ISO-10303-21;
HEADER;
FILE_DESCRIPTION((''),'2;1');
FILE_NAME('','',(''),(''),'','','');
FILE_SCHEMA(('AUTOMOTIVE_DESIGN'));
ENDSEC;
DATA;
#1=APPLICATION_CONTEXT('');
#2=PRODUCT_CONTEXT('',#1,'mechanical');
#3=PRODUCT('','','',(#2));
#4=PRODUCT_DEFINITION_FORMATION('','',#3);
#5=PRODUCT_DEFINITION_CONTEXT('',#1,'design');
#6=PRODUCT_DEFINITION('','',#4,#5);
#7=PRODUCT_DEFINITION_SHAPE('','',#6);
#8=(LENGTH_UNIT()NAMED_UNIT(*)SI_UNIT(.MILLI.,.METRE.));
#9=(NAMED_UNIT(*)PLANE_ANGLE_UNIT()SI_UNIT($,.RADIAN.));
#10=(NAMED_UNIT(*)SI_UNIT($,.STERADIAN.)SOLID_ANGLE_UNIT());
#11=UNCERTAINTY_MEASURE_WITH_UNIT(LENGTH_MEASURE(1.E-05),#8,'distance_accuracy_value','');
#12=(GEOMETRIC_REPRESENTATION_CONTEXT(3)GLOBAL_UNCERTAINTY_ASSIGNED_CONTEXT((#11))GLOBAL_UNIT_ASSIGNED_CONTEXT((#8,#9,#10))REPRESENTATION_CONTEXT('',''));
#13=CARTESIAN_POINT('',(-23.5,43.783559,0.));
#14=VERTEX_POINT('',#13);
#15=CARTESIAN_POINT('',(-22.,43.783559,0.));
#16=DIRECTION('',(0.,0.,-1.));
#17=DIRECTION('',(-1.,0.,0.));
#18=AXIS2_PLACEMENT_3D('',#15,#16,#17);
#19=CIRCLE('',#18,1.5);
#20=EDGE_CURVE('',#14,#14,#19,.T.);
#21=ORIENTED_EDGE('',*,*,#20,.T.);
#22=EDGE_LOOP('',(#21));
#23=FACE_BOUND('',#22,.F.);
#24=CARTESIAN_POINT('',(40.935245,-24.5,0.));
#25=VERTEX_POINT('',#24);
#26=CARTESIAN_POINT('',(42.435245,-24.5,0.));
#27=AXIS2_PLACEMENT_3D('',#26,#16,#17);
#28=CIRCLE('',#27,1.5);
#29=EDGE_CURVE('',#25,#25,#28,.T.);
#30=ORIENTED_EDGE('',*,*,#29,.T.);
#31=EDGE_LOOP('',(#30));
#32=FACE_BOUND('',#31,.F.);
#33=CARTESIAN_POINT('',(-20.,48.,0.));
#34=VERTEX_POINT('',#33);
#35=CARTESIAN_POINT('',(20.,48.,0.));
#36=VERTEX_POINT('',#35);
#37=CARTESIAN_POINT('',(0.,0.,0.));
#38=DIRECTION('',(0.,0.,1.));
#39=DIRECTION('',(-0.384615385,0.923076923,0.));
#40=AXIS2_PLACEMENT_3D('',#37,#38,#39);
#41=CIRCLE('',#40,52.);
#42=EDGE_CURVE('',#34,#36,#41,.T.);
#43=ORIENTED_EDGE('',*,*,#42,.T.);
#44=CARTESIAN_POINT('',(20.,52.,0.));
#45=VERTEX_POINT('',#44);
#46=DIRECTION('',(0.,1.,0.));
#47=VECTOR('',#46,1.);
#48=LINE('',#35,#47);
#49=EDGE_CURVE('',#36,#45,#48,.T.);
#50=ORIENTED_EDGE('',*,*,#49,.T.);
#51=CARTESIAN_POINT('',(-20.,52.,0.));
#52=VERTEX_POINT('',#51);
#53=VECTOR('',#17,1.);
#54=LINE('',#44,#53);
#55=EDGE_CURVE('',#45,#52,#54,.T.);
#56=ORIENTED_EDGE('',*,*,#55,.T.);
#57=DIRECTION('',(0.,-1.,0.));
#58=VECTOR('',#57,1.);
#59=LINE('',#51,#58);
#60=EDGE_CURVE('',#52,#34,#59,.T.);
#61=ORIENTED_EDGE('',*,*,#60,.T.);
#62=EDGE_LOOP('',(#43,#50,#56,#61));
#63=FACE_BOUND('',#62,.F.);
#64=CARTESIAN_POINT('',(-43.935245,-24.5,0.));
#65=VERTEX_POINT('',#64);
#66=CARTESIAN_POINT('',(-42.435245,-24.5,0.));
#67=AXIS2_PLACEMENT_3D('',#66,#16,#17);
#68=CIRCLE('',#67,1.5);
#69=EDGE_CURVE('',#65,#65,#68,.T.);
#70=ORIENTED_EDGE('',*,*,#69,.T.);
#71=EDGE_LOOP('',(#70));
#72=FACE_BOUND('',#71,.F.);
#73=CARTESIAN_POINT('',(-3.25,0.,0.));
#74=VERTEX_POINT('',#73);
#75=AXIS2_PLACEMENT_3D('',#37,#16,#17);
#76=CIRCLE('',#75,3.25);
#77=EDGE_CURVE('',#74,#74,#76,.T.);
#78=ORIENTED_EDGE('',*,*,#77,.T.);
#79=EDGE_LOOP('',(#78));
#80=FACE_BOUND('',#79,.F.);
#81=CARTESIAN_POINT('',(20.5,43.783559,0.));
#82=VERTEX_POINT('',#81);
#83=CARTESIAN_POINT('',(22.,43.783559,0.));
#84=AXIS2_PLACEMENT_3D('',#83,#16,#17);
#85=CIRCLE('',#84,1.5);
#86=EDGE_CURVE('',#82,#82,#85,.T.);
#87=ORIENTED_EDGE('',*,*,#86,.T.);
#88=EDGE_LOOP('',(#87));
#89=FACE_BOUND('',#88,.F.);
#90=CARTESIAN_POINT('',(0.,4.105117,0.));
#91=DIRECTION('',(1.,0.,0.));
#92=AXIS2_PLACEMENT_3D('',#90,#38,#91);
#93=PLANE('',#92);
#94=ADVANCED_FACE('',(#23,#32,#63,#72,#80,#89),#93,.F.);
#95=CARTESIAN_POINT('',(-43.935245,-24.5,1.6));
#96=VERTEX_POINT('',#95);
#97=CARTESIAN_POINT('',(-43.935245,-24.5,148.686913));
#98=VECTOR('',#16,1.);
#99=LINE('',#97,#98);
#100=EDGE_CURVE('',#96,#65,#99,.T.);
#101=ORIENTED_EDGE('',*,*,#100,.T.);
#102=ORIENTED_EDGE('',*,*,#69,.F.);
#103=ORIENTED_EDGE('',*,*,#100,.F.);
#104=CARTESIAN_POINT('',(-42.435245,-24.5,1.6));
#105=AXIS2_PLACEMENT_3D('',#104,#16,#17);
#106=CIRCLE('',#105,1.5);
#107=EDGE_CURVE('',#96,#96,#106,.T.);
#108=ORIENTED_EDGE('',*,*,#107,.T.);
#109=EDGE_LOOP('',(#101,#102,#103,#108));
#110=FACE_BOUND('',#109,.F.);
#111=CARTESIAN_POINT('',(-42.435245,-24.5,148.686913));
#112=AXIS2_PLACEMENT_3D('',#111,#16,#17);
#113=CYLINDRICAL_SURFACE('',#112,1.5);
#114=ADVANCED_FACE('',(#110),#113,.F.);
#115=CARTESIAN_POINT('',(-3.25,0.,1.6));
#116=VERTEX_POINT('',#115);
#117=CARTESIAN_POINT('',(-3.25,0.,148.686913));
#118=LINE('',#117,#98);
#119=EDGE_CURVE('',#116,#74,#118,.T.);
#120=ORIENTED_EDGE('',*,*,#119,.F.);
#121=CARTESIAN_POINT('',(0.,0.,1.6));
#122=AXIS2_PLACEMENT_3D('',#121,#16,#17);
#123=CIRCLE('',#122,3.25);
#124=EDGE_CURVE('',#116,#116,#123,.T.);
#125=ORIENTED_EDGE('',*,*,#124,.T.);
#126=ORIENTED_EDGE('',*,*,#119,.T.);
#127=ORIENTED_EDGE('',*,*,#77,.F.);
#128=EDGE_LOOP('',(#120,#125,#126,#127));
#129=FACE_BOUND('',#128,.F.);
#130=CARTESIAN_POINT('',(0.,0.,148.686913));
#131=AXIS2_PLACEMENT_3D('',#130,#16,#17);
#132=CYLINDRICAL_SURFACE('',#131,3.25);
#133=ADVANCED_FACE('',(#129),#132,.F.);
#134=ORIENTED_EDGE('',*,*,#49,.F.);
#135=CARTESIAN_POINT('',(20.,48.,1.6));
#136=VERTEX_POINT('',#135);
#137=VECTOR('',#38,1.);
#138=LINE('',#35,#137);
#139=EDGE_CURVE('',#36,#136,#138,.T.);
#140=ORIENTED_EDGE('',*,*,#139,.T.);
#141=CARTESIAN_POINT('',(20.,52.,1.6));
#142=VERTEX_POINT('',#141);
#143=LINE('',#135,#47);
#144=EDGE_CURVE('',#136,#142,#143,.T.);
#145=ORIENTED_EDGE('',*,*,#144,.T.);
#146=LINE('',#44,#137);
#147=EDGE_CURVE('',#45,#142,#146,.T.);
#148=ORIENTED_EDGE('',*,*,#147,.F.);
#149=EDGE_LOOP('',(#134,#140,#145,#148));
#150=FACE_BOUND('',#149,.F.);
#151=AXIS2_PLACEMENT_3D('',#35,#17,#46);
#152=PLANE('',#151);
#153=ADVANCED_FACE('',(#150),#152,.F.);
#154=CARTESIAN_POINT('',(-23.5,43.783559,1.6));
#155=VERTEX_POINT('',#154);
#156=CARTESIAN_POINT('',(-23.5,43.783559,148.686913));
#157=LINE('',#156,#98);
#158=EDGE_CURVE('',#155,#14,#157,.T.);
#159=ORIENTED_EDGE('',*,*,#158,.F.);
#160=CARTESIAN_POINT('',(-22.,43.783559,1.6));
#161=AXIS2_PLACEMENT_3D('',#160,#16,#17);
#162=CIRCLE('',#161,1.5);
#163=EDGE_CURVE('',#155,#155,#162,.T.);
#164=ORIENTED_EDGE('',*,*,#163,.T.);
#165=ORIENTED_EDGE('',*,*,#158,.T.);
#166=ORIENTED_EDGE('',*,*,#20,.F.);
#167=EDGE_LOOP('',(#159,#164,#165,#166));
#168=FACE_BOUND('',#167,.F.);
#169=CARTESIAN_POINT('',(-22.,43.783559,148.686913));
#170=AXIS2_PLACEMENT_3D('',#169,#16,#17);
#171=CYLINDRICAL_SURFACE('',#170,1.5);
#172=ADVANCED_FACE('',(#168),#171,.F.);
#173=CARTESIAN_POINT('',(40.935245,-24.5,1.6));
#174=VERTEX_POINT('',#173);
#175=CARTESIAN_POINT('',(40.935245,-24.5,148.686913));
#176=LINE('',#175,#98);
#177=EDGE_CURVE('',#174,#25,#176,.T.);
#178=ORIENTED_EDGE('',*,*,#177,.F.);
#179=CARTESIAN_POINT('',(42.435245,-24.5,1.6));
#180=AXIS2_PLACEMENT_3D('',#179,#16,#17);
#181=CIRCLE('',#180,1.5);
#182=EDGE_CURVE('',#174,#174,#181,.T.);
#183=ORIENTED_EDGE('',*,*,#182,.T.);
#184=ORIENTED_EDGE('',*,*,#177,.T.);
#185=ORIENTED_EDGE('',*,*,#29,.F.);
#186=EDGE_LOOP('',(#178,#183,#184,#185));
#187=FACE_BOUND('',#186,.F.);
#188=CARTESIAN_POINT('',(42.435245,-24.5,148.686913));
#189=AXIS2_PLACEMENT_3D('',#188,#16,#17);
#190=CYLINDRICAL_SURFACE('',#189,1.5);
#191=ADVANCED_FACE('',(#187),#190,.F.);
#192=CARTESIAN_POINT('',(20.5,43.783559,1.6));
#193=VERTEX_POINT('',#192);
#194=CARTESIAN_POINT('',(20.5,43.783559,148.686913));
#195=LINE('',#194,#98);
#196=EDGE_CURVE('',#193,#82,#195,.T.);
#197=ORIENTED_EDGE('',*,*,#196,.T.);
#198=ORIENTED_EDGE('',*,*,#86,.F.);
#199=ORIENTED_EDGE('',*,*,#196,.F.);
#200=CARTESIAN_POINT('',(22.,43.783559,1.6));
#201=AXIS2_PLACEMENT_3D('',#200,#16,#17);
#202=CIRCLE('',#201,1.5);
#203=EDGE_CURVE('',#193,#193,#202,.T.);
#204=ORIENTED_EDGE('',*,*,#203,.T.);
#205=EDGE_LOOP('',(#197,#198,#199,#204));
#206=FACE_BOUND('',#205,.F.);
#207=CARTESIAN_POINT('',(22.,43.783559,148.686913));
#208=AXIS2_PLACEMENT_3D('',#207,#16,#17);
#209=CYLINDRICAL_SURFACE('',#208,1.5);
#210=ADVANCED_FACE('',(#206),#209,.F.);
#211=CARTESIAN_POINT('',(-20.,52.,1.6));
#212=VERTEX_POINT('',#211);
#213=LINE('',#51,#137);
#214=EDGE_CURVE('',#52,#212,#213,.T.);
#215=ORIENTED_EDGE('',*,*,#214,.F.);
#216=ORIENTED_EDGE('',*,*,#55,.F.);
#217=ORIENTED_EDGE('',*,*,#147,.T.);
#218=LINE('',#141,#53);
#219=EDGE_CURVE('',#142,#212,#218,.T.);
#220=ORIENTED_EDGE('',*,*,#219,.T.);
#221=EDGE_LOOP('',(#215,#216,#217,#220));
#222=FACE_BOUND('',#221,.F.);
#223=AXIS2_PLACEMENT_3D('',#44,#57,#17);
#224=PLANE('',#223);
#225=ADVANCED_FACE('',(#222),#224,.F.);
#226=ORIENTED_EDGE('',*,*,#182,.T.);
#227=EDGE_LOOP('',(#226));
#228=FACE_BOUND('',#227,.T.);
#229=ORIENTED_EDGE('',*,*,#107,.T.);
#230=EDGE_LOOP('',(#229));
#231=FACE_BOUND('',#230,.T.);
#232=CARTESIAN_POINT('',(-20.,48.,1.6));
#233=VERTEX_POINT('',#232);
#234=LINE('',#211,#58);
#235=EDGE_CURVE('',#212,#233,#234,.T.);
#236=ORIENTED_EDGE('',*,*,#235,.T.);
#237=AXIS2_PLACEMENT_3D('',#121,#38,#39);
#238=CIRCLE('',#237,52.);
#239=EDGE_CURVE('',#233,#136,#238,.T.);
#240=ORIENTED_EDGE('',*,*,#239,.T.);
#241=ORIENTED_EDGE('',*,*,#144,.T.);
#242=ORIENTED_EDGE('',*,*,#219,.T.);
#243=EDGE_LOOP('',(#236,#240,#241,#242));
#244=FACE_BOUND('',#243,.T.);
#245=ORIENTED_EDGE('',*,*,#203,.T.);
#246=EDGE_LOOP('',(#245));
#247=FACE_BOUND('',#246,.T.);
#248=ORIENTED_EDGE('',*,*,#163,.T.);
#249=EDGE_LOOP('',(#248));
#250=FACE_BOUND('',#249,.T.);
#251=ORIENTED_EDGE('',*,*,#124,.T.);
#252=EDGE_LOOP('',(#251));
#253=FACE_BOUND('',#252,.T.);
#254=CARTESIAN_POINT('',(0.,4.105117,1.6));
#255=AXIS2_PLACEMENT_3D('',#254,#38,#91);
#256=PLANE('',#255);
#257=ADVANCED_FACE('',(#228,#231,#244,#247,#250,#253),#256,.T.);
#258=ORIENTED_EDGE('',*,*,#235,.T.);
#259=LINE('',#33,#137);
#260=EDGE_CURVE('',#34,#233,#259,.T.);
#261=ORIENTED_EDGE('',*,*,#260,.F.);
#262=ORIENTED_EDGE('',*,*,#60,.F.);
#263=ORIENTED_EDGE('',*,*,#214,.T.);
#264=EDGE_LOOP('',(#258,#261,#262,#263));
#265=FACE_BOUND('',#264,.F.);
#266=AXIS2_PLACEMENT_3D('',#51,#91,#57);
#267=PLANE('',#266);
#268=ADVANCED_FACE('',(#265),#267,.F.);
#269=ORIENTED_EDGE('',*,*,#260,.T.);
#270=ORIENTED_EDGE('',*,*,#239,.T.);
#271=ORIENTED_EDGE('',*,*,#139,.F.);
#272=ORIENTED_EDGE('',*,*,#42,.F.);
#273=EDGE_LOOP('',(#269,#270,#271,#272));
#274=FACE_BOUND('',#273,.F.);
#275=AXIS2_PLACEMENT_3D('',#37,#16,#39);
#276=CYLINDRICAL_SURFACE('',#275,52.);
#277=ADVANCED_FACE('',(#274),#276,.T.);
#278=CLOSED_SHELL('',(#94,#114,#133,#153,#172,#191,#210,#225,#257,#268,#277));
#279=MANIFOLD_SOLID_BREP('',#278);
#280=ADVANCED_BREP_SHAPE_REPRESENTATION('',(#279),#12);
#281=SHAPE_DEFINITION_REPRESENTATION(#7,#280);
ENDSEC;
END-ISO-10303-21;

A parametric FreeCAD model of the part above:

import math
import FreeCAD as App
import Part
import Sketcher
from FreeCAD import Vector

doc = App.newDocument("Part")
params = doc.addObject("Spreadsheet::Sheet", "Params")
for row, (alias, value) in enumerate([
    ("sketch1_radius", "52 mm"),
    ("sketch1_width", "40 mm"),
    ("sketch1_height", "4 mm"),
    ("pad1_length", "1.6 mm"),
    ("sketch2_diameter", "3 mm"),
    ("hole_diameter", "3 mm"),
    ("sketch3_diameter", "6.5 mm"),
    ("hole2_diameter", "6.5 mm"),
], start=1):
    params.set(f"A{row}", alias)
    params.set(f"B{row}", "=" + value)
    params.setAlias(f"B{row}", alias)

body = doc.addObject("PartDesign::Body", "Body")

# Sketch on XY plane
sketch1 = body.newObject("Sketcher::SketchObject", "Sketch")
sketch1.AttachmentSupport = (doc.getObject("XY_Plane"), [""])
sketch1.MapMode = "FlatFace"
sketch1.addGeometry([
    Part.LineSegment(Vector(-20, 52, 0), Vector(-20, 48, 0)),
    Part.ArcOfCircle(Part.Circle(Vector(0, 0, 0), Vector(0, 0, 1), 52), math.radians(113), math.radians(427)),
    Part.LineSegment(Vector(20, 48, 0), Vector(20, 52, 0)),
    Part.LineSegment(Vector(20, 52, 0), Vector(-20, 52, 0)),
], False)
sketch1.addConstraint([
    Sketcher.Constraint("Coincident", 0, 2, 1, 1),
    Sketcher.Constraint("Coincident", 1, 2, 2, 1),
    Sketcher.Constraint("Coincident", 2, 2, 3, 1),
    Sketcher.Constraint("Coincident", 3, 2, 0, 1),
    Sketcher.Constraint("Vertical", 0),
    Sketcher.Constraint("Vertical", 2),
    Sketcher.Constraint("Horizontal", 3),
    Sketcher.Constraint("Coincident", 1, 3, -1, 1),
    Sketcher.Constraint("Horizontal", 0, 2, 1, 2),
    Sketcher.Constraint("Radius", 1, 52.0),
    Sketcher.Constraint("DistanceX", 3, 2, 3, 1, 40.0),
    Sketcher.Constraint("DistanceY", 0, 2, 0, 1, 4.0),
])
sketch1.setExpression("Constraints[9]", "Params.sketch1_radius")
sketch1.setExpression("Constraints[10]", "Params.sketch1_width")
sketch1.setExpression("Constraints[11]", "Params.sketch1_height")
pad1 = body.newObject("PartDesign::Pad", "Pad")
pad1.Profile = sketch1
pad1.setExpression("Length", "Params.pad1_length")

# Sketch on XY plane
sketch2 = body.newObject("Sketcher::SketchObject", "Sketch001")
sketch2.AttachmentSupport = (doc.getObject("XY_Plane"), [""])
sketch2.MapMode = "FlatFace"
sketch2.AttachmentOffset = App.Placement(Vector(0, 0, 1.6), App.Rotation())
sketch2.addGeometry([
    Part.Circle(Vector(-22, 43.8, 0), Vector(0, 0, 1), 1.5),
    Part.Circle(Vector(22, 43.8, 0), Vector(0, 0, 1), 1.5),
    Part.Circle(Vector(42.4, -24.5, 0), Vector(0, 0, 1), 1.5),
    Part.Circle(Vector(-42.4, -24.5, 0), Vector(0, 0, 1), 1.5),
], False)
sketch2.addConstraint([
    Sketcher.Constraint("Equal", 0, 1),
    Sketcher.Constraint("Equal", 1, 2),
    Sketcher.Constraint("Equal", 2, 3),
    Sketcher.Constraint("Symmetric", 0, 3, 1, 3, -2),
    Sketcher.Constraint("Symmetric", 2, 3, 3, 3, -2),
    Sketcher.Constraint("Diameter", 0, 3.0),
    Sketcher.Constraint("DistanceX", 0, 3, -1, 1, 22.0),
    Sketcher.Constraint("DistanceY", 2, 3, -1, 1, 24.5),
    Sketcher.Constraint("DistanceY", -1, 1, 0, 3, 43.783559),
    Sketcher.Constraint("DistanceX", 3, 3, 2, 3, 84.87049),
])
sketch2.setExpression("Constraints[5]", "Params.sketch2_diameter")
doc.recompute()
hole = body.newObject("PartDesign::Hole", "Hole")
hole.Profile = sketch2
hole.ThreadType = "None"
hole.setExpression("Diameter", "Params.hole_diameter")
hole.DepthType = "ThroughAll"

# Sketch on XY plane
sketch3 = body.newObject("Sketcher::SketchObject", "Sketch002")
sketch3.AttachmentSupport = (doc.getObject("XY_Plane"), [""])
sketch3.MapMode = "FlatFace"
sketch3.AttachmentOffset = App.Placement(Vector(0, 0, 1.6), App.Rotation())
sketch3.addGeometry(Part.Circle(Vector(0, 0, 0), Vector(0, 0, 1), 3.2), False)
sketch3.addConstraint([
    Sketcher.Constraint("Coincident", 0, 3, -1, 1),
    Sketcher.Constraint("Diameter", 0, 6.5),
])
sketch3.setExpression("Constraints[1]", "Params.sketch3_diameter")
doc.recompute()
hole2 = body.newObject("PartDesign::Hole", "Hole001")
hole2.Profile = sketch3
hole2.ThreadType = "None"
hole2.setExpression("Diameter", "Params.hole2_diameter")
hole2.DepthType = "ThroughAll"

doc.recompute()
